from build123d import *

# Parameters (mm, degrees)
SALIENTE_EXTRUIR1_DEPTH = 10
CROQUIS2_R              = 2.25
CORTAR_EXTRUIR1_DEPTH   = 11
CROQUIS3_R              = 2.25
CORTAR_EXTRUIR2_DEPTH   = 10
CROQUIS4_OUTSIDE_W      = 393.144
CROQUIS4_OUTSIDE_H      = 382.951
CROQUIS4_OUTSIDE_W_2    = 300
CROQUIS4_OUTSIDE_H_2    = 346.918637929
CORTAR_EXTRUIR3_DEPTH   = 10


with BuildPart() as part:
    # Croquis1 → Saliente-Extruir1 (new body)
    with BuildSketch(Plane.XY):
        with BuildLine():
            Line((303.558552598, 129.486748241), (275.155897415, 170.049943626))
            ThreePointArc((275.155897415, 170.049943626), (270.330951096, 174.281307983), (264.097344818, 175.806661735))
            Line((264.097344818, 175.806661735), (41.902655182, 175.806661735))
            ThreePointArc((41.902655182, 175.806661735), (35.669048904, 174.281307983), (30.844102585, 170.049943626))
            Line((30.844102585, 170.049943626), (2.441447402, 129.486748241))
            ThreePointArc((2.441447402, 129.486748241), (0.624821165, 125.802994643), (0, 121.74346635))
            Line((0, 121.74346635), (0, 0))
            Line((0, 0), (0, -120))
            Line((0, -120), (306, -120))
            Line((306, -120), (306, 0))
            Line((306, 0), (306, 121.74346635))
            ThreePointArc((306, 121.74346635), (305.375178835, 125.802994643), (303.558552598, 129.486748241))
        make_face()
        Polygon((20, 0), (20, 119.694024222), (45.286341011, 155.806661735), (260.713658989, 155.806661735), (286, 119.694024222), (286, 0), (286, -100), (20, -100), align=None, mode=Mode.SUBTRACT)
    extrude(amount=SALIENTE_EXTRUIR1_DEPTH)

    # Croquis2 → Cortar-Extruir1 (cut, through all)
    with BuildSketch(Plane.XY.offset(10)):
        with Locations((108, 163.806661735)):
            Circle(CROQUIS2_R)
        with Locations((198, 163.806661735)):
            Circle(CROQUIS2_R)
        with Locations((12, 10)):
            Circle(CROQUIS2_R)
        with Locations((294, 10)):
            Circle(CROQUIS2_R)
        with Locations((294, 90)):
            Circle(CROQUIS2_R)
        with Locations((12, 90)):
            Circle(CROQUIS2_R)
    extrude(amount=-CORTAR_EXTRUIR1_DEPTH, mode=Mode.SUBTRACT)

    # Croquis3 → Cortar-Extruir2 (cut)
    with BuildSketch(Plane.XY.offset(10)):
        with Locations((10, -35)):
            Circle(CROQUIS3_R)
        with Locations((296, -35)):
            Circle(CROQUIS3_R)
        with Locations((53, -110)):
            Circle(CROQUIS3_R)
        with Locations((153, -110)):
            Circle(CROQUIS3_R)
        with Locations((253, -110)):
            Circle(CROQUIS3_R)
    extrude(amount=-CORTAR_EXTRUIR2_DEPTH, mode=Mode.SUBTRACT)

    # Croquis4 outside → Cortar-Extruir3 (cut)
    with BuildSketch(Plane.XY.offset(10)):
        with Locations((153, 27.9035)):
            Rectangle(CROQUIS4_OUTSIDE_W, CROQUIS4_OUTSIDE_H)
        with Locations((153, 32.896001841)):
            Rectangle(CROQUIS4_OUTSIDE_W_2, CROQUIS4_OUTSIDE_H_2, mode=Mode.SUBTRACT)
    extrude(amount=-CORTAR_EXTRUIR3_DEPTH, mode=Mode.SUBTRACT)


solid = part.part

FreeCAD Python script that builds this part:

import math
import FreeCAD as App
import Part
import Sketcher

V = App.Vector
Q = App.Units.Quantity


def add_polygon(sketch, points):
    """Adds a closed chain of lines whose ends are joined by coincident constraints."""
    first, n = sketch.GeometryCount, len(points)
    for a, b in zip(points, points[1:] + points[:1]):
        sketch.addGeometry(Part.LineSegment(App.Vector(*a, 0), App.Vector(*b, 0)), False)
    for i in range(n):
        sketch.addConstraint(Sketcher.Constraint("Coincident", first + i, 2, first + (i + 1) % n, 1))

doc = App.newDocument("Part")
body = doc.addObject("PartDesign::Body", "Body")

# Sketch on XY plane
sketch1 = body.newObject("Sketcher::SketchObject", "Sketch")
sketch1.AttachmentSupport = (doc.getObject("XY_Plane"), [""])
sketch1.MapMode = "FlatFace"
sketch1.addGeometry(Part.LineSegment(V(304, 129, 0), V(275, 170, 0)), False)  # 0
sketch1.addGeometry(Part.ArcOfCircle(Part.Circle(V(264, 162, 0), V(0, 0, 1), 13), math.radians(35), math.radians(90)), False)  # 1
sketch1.addGeometry(Part.LineSegment(V(264, 176, 0), V(42, 176, 0)), False)  # 2
sketch1.addGeometry(Part.ArcOfCircle(Part.Circle(V(42, 162, 0), V(0, 0, 1), 13), math.radians(90), math.radians(145)), False)  # 3
sketch1.addGeometry(Part.LineSegment(V(31, 170, 0), V(2, 129, 0)), False)  # 4
sketch1.addGeometry(Part.ArcOfCircle(Part.Circle(V(14, 122, 0), V(0, 0, 1), 14), math.radians(145), math.radians(180)), False)  # 5
sketch1.addGeometry(Part.LineSegment(V(0, 122, 0), V(0, -120, 0)), False)  # 6
sketch1.addGeometry(Part.LineSegment(V(0, -120, 0), V(306, -120, 0)), False)  # 7
sketch1.addGeometry(Part.LineSegment(V(306, -120, 0), V(306, 122, 0)), False)  # 8
sketch1.addGeometry(Part.ArcOfCircle(Part.Circle(V(292, 122, 0), V(0, 0, 1), 14), math.radians(0), math.radians(35)), False)  # 9
add_polygon(sketch1, [(20, -100), (20, 120), (45, 156), (261, 156), (286, 120), (286, -100)])  # lines 10-15
sketch1.addConstraint(Sketcher.Constraint("Tangent", 0, 2, 1, 1))
sketch1.addConstraint(Sketcher.Constraint("Tangent", 1, 2, 2, 1))
sketch1.addConstraint(Sketcher.Constraint("Tangent", 2, 2, 3, 1))
sketch1.addConstraint(Sketcher.Constraint("Tangent", 3, 2, 4, 1))
sketch1.addConstraint(Sketcher.Constraint("Tangent", 4, 2, 5, 1))
sketch1.addConstraint(Sketcher.Constraint("Tangent", 5, 2, 6, 1))
sketch1.addConstraint(Sketcher.Constraint("Coincident", 6, 2, 7, 1))
sketch1.addConstraint(Sketcher.Constraint("Coincident", 7, 2, 8, 1))
sketch1.addConstraint(Sketcher.Constraint("Tangent", 8, 2, 9, 1))
sketch1.addConstraint(Sketcher.Constraint("Tangent", 9, 2, 0, 1))
sketch1.addConstraint(Sketcher.Constraint("Horizontal", 2))
sketch1.addConstraint(Sketcher.Constraint("Vertical", 6))
sketch1.addConstraint(Sketcher.Constraint("Horizontal", 7))
sketch1.addConstraint(Sketcher.Constraint("Vertical", 8))
sketch1.addConstraint(Sketcher.Constraint("Vertical", 10))
sketch1.addConstraint(Sketcher.Constraint("Horizontal", 12))
sketch1.addConstraint(Sketcher.Constraint("Vertical", 14))
sketch1.addConstraint(Sketcher.Constraint("Horizontal", 15))
sketch1.addConstraint(Sketcher.Constraint("Equal", 1, 3))
sketch1.addConstraint(Sketcher.Constraint("Equal", 3, 5))
sketch1.addConstraint(Sketcher.Constraint("Equal", 5, 9))
sketch1.addConstraint(Sketcher.Constraint("PointOnObject", 5, 2, -2))
sketch1.addConstraint(Sketcher.Constraint("Parallel", 4, 11))
sketch1.addConstraint(Sketcher.Constraint("Parallel", 0, 13))
sketch1.addConstraint(Sketcher.Constraint("Horizontal", 5, 3, 9, 3))
sketch1.addConstraint(Sketcher.Constraint("Horizontal", 0, 2, 3, 2))
sketch1.addConstraint(Sketcher.Constraint("Horizontal", 10, 2, 13, 2))
sketch1.addConstraint(Sketcher.Constraint("Radius", 1, 13.5))
sketch1.addConstraint(Sketcher.Constraint("DistanceX", 7, 1, 7, 2, 306.0))
sketch1.addConstraint(Sketcher.Constraint("DistanceX", 15, 2, 15, 1, 266.0))
sketch1.addConstraint(Sketcher.Constraint("Angle", 0, Q("125 deg")))
sketch1.addConstraint(Sketcher.Constraint("DistanceY", 6, 2, -1, 1, 120.0))
sketch1.addConstraint(Sketcher.Constraint("DistanceX", -1, 1, 10, 2, 20.0))
sketch1.addConstraint(Sketcher.Constraint("DistanceY", 14, 2, -1, 1, 100.0))
sketch1.addConstraint(Sketcher.Constraint("DistanceY", 11, 2, 2, 2, 20.0))
sketch1.addConstraint(Sketcher.Constraint("DistanceX", 2, 2, 2, 1, 222.19469))
sketch1.addConstraint(Sketcher.Constraint("Distance", 11, 44.08539))
sketch1.addConstraint(Sketcher.Constraint("DistanceY", 6, 2, 6, 1, 241.743466))
pad1 = body.newObject("PartDesign::Pad", "Pad")
pad1.Profile = sketch1
pad1.Length = 10

# Sketch on XY plane
sketch2 = body.newObject("Sketcher::SketchObject", "Sketch001")
sketch2.AttachmentSupport = (doc.getObject("XY_Plane"), [""])
sketch2.MapMode = "FlatFace"
sketch2.AttachmentOffset = App.Placement(V(0, 0, 10), App.Rotation())
sketch2.addGeometry(Part.Circle(V(108, 163.8, 0), V(0, 0, 1), 2.2), False)
sketch2.addGeometry(Part.Circle(V(198, 163.8, 0), V(0, 0, 1), 2.2), False)
sketch2.addGeometry(Part.Circle(V(12, 10, 0), V(0, 0, 1), 2.2), False)
sketch2.addGeometry(Part.Circle(V(294, 10, 0), V(0, 0, 1), 2.2), False)
sketch2.addGeometry(Part.Circle(V(294, 90, 0), V(0, 0, 1), 2.2), False)
sketch2.addGeometry(Part.Circle(V(12, 90, 0), V(0, 0, 1), 2.2), False)
sketch2.addConstraint(Sketcher.Constraint("Equal", 0, 1))
sketch2.addConstraint(Sketcher.Constraint("Equal", 1, 2))
sketch2.addConstraint(Sketcher.Constraint("Equal", 2, 3))
sketch2.addConstraint(Sketcher.Constraint("Equal", 3, 4))
sketch2.addConstraint(Sketcher.Constraint("Equal", 4, 5))
sketch2.addConstraint(Sketcher.Constraint("Horizontal", 0, 3, 1, 3))
sketch2.addConstraint(Sketcher.Constraint("Horizontal", 2, 3, 3, 3))
sketch2.addConstraint(Sketcher.Constraint("Horizontal", 4, 3, 5, 3))
sketch2.addConstraint(Sketcher.Constraint("Vertical", 3, 3, 4, 3))
sketch2.addConstraint(Sketcher.Constraint("Vertical", 2, 3, 5, 3))
sketch2.addConstraint(Sketcher.Constraint("Diameter", 0, 4.5))
sketch2.addConstraint(Sketcher.Constraint("DistanceX", -1, 1, 0, 3, 108.0))
sketch2.addConstraint(Sketcher.Constraint("DistanceX", -1, 1, 1, 3, 198.0))
sketch2.addConstraint(Sketcher.Constraint("DistanceX", -1, 1, 2, 3, 12.0))
sketch2.addConstraint(Sketcher.Constraint("DistanceY", -1, 1, 2, 3, 10.0))
sketch2.addConstraint(Sketcher.Constraint("DistanceX", -1, 1, 3, 3, 294.0))
sketch2.addConstraint(Sketcher.Constraint("DistanceY", -1, 1, 4, 3, 90.0))
sketch2.addConstraint(Sketcher.Constraint("DistanceY", -1, 1, 0, 3, 163.806662))
pocket1 = body.newObject("PartDesign::Pocket", "Pocket")
pocket1.Profile = sketch2
pocket1.Type = "ThroughAll"

# Sketch on XY plane
sketch3 = body.newObject("Sketcher::SketchObject", "Sketch002")
sketch3.AttachmentSupport = (doc.getObject("XY_Plane"), [""])
sketch3.MapMode = "FlatFace"
sketch3.AttachmentOffset = App.Placement(V(0, 0, 10), App.Rotation())
sketch3.addGeometry(Part.Circle(V(10, -35, 0), V(0, 0, 1), 2.2), False)
sketch3.addGeometry(Part.Circle(V(296, -35, 0), V(0, 0, 1), 2.2), False)
sketch3.addGeometry(Part.Circle(V(53, -110, 0), V(0, 0, 1), 2.2), False)
sketch3.addGeometry(Part.Circle(V(153, -110, 0), V(0, 0, 1), 2.2), False)
sketch3.addGeometry(Part.Circle(V(253, -110, 0), V(0, 0, 1), 2.2), False)
sketch3.addConstraint(Sketcher.Constraint("Equal", 0, 1))
sketch3.addConstraint(Sketcher.Constraint("Equal", 1, 2))
sketch3.addConstraint(Sketcher.Constraint("Equal", 2, 3))
sketch3.addConstraint(Sketcher.Constraint("Equal", 3, 4))
sketch3.addConstraint(Sketcher.Constraint("Horizontal", 0, 3, 1, 3))
sketch3.addConstraint(Sketcher.Constraint("Horizontal", 2, 3, 3, 3))
sketch3.addConstraint(Sketcher.Constraint("Horizontal", 3, 3, 4, 3))
sketch3.addConstraint(Sketcher.Constraint("Diameter", 0, 4.5))
sketch3.addConstraint(Sketcher.Constraint("DistanceX", -1, 1, 0, 3, 10.0))
sketch3.addConstraint(Sketcher.Constraint("DistanceY", 0, 3, -1, 1, 35.0))
sketch3.addConstraint(Sketcher.Constraint("DistanceX", -1, 1, 1, 3, 296.0))
sketch3.addConstraint(Sketcher.Constraint("DistanceX", -1, 1, 2, 3, 53.0))
sketch3.addConstraint(Sketcher.Constraint("DistanceY", 2, 3, -1, 1, 110.0))
sketch3.addConstraint(Sketcher.Constraint("DistanceX", -1, 1, 3, 3, 153.0))
sketch3.addConstraint(Sketcher.Constraint("DistanceX", -1, 1, 4, 3, 253.0))
pocket2 = body.newObject("PartDesign::Pocket", "Pocket001")
pocket2.Profile = sketch3
pocket2.Length = 10

# Sketch on XY plane
sketch4 = body.newObject("Sketcher::SketchObject", "Sketch003")
sketch4.AttachmentSupport = (doc.getObject("XY_Plane"), [""])
sketch4.MapMode = "FlatFace"
sketch4.AttachmentOffset = App.Placement(V(0, 0, 10), App.Rotation())
add_polygon(sketch4, [(-44, 219), (-44, -164), (350, -164), (350, 219)])  # lines 0-3
add_polygon(sketch4, [(303, -141), (3, -141), (3, 206), (303, 206)])  # lines 4-7
sketch4.addConstraint(Sketcher.Constraint("Vertical", 0))
sketch4.addConstraint(Sketcher.Constraint("Horizontal", 1))
sketch4.addConstraint(Sketcher.Constraint("Vertical", 2))
sketch4.addConstraint(Sketcher.Constraint("Horizontal", 3))
sketch4.addConstraint(Sketcher.Constraint("Horizontal", 4))
sketch4.addConstraint(Sketcher.Constraint("Vertical", 5))
sketch4.addConstraint(Sketcher.Constraint("Horizontal", 6))
sketch4.addConstraint(Sketcher.Constraint("Vertical", 7))
sketch4.addConstraint(Sketcher.Constraint("DistanceX", 4, 2, 4, 1, 300.0))
sketch4.addConstraint(Sketcher.Constraint("DistanceX", -1, 1, 4, 2, 3.0))
sketch4.addConstraint(Sketcher.Constraint("DistanceX", 1, 1, 1, 2, 393.144))
sketch4.addConstraint(Sketcher.Constraint("DistanceY", 0, 2, 0, 1, 382.951))
sketch4.addConstraint(Sketcher.Constraint("DistanceX", 0, 2, -1, 1, 43.572))
sketch4.addConstraint(Sketcher.Constraint("DistanceY", 0, 2, -1, 1, 163.572))
sketch4.addConstraint(Sketcher.Constraint("DistanceY", 5, 1, 5, 2, 346.918638))
sketch4.addConstraint(Sketcher.Constraint("DistanceY", -1, 1, 5, 2, 206.355321))
pocket3 = body.newObject("PartDesign::Pocket", "Pocket002")
pocket3.Profile = sketch4
pocket3.Length = 10

doc.recompute()
